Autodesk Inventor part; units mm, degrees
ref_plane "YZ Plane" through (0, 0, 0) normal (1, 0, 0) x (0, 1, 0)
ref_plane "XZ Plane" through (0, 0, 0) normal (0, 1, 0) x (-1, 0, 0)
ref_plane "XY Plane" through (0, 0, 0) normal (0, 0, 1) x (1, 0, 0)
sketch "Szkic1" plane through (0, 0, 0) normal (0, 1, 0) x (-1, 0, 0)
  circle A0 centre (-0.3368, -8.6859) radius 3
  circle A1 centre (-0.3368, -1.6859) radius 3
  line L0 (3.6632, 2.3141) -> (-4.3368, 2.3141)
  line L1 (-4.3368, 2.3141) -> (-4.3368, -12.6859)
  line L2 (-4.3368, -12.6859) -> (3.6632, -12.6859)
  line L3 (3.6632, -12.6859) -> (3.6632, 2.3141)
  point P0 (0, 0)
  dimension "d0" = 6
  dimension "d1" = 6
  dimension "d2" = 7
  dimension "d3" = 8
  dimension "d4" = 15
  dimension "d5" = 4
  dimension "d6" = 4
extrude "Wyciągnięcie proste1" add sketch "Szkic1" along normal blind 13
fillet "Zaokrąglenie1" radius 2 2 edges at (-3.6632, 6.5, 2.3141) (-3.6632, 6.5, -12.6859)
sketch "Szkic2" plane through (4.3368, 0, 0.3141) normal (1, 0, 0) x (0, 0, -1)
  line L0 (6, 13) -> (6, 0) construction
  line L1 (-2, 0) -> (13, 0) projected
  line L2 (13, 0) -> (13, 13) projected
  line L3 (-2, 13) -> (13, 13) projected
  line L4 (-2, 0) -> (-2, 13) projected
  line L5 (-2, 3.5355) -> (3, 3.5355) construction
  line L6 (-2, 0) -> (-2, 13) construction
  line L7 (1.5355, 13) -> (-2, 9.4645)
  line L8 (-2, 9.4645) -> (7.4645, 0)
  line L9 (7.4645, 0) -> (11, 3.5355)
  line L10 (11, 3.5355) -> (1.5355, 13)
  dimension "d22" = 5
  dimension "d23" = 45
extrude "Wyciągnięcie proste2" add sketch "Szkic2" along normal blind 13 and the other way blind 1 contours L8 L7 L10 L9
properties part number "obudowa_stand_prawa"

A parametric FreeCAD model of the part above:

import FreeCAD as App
import Part
import Sketcher
from FreeCAD import Vector
Q = App.Units.Quantity


def edges_at(feature, points):
    """Names of the edges that pass closest to the given points."""
    edges = feature.Shape.Edges
    near = lambda p: min(range(len(edges)), key=lambda i: edges[i].distToShape(Part.Vertex(*p))[0])
    return sorted({f"Edge{near(p) + 1}" for p in points})

doc = App.newDocument("Part")
body = doc.addObject("PartDesign::Body", "Body")

sketch1 = body.newObject("Sketcher::SketchObject", "Sketch")
sketch1.AttachmentSupport = (doc.getObject("XZ_Plane"), [""])
sketch1.MapMode = "FlatFace"
sketch1.addGeometry([
    Part.LineSegment(Vector(-3.6632, -12.6859, 0), Vector(-3.6632, 2.3141, 0)),
    Part.LineSegment(Vector(-3.6632, 2.3141, 0), Vector(4.3368, 2.3141, 0)),
    Part.LineSegment(Vector(4.3368, 2.3141, 0), Vector(4.3368, -12.6859, 0)),
    Part.LineSegment(Vector(4.3368, -12.6859, 0), Vector(-3.6632, -12.6859, 0)),
    Part.Circle(Vector(0.3368, -8.6859, 0), Vector(0, 0, 1), 3),
    Part.Circle(Vector(0.3368, -1.6859, 0), Vector(0, 0, 1), 3),
], False)
sketch1.addConstraint([
    Sketcher.Constraint("Coincident", 0, 2, 1, 1),
    Sketcher.Constraint("Coincident", 1, 2, 2, 1),
    Sketcher.Constraint("Coincident", 2, 2, 3, 1),
    Sketcher.Constraint("Coincident", 3, 2, 0, 1),
    Sketcher.Constraint("Vertical", 0),
    Sketcher.Constraint("Horizontal", 1),
    Sketcher.Constraint("Vertical", 2),
    Sketcher.Constraint("Horizontal", 3),
    Sketcher.Constraint("Equal", 4, 5),
    Sketcher.Constraint("Vertical", 4, 3, 5, 3),
    Sketcher.Constraint("Diameter", 4, Q("6 mm")),
    Sketcher.Constraint("DistanceX", 1, 1, 1, 2, Q("8 mm")),
    Sketcher.Constraint("DistanceY", 0, 1, 0, 2, Q("15 mm")),
    Sketcher.Constraint("DistanceY", 4, 3, 5, 3, Q("7 mm")),
    Sketcher.Constraint("DistanceX", 0, 2, 5, 3, Q("4 mm")),
    Sketcher.Constraint("DistanceY", 5, 3, 0, 2, Q("4 mm")),
    Sketcher.Constraint("DistanceY", 4, 3, -1, 1, Q("8.686 mm")),
    Sketcher.Constraint("DistanceX", -1, 1, 4, 3, Q("0.3368 mm")),
])
pad1 = body.newObject("PartDesign::Pad", "Pad")
pad1.Profile = sketch1
pad1.Length = 13
pad1.Reversed = True
doc.recompute()

fillet = body.newObject("PartDesign::Fillet", "Fillet")
fillet.Base = (pad1, edges_at(pad1, [(-3.663, 6.5, 2.314), (-3.663, 6.5, -12.686)]))
fillet.Radius = 2

sketch2 = body.newObject("Sketcher::SketchObject", "Sketch001")
sketch2.AttachmentSupport = (doc.getObject("YZ_Plane"), [""])
sketch2.MapMode = "FlatFace"
sketch2.AttachmentOffset = App.Placement(Vector(0, 0, 4.3368), App.Rotation())
sketch2.addGeometry([
    Part.LineSegment(Vector(9.4645, 2.3141, 0), Vector(0, -7.1504, 0)),
    Part.LineSegment(Vector(0, -7.1504, 0), Vector(3.5355, -10.6859, 0)),
    Part.LineSegment(Vector(3.5355, -10.6859, 0), Vector(13, -1.2214, 0)),
    Part.LineSegment(Vector(13, -1.2214, 0), Vector(9.4645, 2.3141, 0)),
], False)
sketch2.addConstraint([
    Sketcher.Constraint("Coincident", 0, 2, 1, 1),
    Sketcher.Constraint("Coincident", 1, 2, 2, 1),
    Sketcher.Constraint("Coincident", 2, 2, 3, 1),
    Sketcher.Constraint("Coincident", 3, 2, 0, 1),
    Sketcher.Constraint("PointOnObject", 0, 2, -2),
    Sketcher.Constraint("Perpendicular", 0, 1),
    Sketcher.Constraint("Perpendicular", 1, 2),
    Sketcher.Constraint("Perpendicular", 2, 3),
    Sketcher.Constraint("Angle", 1, Q("-45 deg")),
    Sketcher.Constraint("Distance", 1, Q("5 mm")),
    Sketcher.Constraint("DistanceX", -1, 1, 2, 2, Q("13 mm")),
    Sketcher.Constraint("DistanceY", 1, 2, -1, 1, Q("10.686 mm")),
])
pad2 = body.newObject("PartDesign::Pad", "Pad001")
pad2.Profile = sketch2
pad2.Type = "TwoLengths"
pad2.Length = 13
pad2.Length2 = 1

doc.recompute()
